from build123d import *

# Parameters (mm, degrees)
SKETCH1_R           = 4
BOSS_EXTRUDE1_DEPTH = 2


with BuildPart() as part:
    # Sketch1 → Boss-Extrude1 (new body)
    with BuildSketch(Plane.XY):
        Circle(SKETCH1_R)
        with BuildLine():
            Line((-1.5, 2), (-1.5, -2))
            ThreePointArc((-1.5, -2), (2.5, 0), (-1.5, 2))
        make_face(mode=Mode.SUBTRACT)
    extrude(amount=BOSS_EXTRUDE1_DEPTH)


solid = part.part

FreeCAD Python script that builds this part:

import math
import FreeCAD as App
import Part
import Sketcher
from FreeCAD import Vector
Q = App.Units.Quantity

doc = App.newDocument("Part")
params = doc.addObject("Spreadsheet::Sheet", "Params")
for row, (alias, value) in enumerate([
    ("sketch1_diameter", "8 mm"),
    ("sketch1_radius", "2.5 mm"),
    ("sketch1_height", "4 mm"),
    ("pad1_length", "2 mm"),
], start=1):
    params.set(f"A{row}", alias)
    params.set(f"B{row}", "=" + value)
    params.setAlias(f"B{row}", alias)

body = doc.addObject("PartDesign::Body", "Body")

sketch1 = body.newObject("Sketcher::SketchObject", "Sketch")
sketch1.AttachmentSupport = (doc.getObject("XY_Plane"), [""])
sketch1.MapMode = "FlatFace"
sketch1.addGeometry([
    Part.Circle(Vector(0, 0, 0), Vector(0, 0, 1), 4),
    Part.LineSegment(Vector(-1.5, -2, 0), Vector(-1.5, 2, 0)),
    Part.ArcOfCircle(Part.Circle(Vector(0, 0, 0), Vector(0, 0, 1), 2.5), math.radians(-127), math.radians(127)),
], False)
sketch1.addConstraint([
    Sketcher.Constraint("Coincident", 1, 1, 2, 1),
    Sketcher.Constraint("Coincident", 2, 2, 1, 2),
    Sketcher.Constraint("Vertical", 1),
    Sketcher.Constraint("Coincident", 0, 3, -1, 1),
    Sketcher.Constraint("Coincident", 2, 3, -1, 1),
    Sketcher.Constraint("Diameter", 0, Q("8 mm")),
    Sketcher.Constraint("Radius", 2, Q("2.5 mm")),
    Sketcher.Constraint("DistanceY", 1, 1, 1, 2, Q("4 mm")),
])
sketch1.setExpression("Constraints[5]", "Params.sketch1_diameter")
sketch1.setExpression("Constraints[6]", "Params.sketch1_radius")
sketch1.setExpression("Constraints[7]", "Params.sketch1_height")
pad1 = body.newObject("PartDesign::Pad", "Pad")
pad1.Profile = sketch1
pad1.setExpression("Length", "Params.pad1_length")

doc.recompute()
